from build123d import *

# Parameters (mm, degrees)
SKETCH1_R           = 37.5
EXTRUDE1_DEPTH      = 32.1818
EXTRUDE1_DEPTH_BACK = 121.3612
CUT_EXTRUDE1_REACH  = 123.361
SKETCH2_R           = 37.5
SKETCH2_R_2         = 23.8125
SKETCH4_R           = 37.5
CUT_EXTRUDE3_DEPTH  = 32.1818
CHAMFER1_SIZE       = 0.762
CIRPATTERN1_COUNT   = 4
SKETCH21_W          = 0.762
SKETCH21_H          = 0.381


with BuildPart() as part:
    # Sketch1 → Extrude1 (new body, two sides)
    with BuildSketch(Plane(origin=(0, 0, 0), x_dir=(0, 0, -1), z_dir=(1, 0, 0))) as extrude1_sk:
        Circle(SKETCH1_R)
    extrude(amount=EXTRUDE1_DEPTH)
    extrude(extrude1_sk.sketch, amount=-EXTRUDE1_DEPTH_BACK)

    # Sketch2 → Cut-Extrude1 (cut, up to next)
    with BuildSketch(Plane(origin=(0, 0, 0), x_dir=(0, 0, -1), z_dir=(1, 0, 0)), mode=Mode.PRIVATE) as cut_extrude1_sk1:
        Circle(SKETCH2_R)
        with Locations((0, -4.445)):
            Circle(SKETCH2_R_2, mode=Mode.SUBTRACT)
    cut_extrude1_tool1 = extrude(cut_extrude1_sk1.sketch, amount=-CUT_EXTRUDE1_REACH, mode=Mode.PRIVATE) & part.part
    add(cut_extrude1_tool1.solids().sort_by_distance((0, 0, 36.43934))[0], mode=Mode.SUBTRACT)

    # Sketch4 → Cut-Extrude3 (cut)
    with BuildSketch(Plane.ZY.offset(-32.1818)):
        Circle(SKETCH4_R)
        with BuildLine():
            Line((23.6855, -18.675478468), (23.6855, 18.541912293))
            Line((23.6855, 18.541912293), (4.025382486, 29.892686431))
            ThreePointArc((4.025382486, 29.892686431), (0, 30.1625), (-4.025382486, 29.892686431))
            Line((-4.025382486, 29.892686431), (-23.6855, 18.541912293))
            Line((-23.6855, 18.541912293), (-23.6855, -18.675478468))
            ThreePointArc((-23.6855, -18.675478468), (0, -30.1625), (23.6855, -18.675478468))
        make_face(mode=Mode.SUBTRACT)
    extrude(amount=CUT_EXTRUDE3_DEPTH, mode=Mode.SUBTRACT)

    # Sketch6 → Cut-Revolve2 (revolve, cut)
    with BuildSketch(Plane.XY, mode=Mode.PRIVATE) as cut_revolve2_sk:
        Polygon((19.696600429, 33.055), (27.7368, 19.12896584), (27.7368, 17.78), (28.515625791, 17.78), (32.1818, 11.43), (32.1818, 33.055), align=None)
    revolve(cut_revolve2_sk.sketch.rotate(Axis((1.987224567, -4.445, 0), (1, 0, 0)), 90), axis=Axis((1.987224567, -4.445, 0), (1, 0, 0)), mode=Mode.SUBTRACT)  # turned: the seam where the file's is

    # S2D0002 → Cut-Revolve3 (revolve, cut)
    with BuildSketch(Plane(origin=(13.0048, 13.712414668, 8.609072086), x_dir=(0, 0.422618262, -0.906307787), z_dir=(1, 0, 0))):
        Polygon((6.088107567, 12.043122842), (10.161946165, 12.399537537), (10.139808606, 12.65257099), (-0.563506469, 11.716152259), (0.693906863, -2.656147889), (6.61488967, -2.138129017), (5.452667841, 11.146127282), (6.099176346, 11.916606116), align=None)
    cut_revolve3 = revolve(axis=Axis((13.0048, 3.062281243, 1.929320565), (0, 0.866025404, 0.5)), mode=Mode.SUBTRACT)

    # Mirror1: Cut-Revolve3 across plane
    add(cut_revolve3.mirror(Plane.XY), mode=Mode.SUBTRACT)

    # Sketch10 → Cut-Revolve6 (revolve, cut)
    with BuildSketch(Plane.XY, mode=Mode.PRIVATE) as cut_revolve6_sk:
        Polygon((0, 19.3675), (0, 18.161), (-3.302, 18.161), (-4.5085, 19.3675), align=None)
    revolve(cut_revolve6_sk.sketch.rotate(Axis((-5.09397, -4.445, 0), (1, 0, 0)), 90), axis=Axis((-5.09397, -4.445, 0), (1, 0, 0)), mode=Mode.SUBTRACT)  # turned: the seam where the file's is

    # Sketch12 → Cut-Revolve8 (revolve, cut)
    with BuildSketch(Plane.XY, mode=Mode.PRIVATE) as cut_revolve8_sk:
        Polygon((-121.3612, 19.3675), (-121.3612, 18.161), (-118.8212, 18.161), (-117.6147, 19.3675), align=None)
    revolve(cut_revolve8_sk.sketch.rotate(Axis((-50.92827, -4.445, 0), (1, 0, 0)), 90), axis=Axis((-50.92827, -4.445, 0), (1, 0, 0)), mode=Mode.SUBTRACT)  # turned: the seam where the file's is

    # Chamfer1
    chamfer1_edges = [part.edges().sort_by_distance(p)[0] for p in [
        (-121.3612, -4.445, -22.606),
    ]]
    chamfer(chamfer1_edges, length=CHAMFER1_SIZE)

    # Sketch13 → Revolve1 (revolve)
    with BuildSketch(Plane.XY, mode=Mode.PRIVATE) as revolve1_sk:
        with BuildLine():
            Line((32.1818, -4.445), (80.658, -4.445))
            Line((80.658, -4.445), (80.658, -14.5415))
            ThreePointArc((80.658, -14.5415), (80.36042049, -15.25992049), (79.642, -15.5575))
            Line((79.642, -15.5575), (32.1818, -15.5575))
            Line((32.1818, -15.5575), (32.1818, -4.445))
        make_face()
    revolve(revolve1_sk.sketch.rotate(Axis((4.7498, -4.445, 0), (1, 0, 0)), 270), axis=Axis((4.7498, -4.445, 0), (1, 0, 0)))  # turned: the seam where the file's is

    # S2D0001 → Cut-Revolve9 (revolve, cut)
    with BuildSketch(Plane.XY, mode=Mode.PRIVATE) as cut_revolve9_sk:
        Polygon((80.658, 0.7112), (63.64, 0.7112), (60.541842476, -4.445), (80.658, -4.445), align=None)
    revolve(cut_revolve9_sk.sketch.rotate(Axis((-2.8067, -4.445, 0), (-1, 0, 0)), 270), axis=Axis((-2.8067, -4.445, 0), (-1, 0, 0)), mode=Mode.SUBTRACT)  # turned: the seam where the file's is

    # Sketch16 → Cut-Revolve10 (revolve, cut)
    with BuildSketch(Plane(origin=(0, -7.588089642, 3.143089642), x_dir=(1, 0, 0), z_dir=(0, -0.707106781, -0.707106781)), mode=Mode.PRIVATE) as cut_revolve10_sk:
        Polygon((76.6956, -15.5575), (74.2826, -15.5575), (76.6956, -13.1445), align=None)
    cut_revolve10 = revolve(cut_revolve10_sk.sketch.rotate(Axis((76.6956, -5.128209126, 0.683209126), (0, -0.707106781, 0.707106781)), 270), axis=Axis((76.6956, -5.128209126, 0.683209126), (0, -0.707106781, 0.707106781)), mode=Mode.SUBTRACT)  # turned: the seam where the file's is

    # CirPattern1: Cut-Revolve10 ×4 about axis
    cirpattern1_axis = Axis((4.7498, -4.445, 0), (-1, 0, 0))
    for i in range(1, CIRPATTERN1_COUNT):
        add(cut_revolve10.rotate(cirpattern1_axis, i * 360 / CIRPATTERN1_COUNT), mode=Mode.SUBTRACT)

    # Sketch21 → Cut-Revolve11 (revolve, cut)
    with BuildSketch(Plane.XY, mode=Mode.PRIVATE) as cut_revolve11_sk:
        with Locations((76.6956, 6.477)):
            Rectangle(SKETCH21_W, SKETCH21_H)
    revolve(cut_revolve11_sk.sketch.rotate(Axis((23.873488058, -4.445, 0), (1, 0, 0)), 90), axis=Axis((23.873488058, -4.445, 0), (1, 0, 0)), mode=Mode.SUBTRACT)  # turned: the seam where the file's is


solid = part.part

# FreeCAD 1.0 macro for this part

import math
import FreeCAD as App
import Part
import Sketcher

V = App.Vector
Q = App.Units.Quantity


def edges_at(feature, points):
    """Names of the edges that pass closest to the given points."""
    edges = feature.Shape.Edges
    near = lambda p: min(range(len(edges)), key=lambda i: edges[i].distToShape(Part.Vertex(*p))[0])
    return sorted({f"Edge{near(p) + 1}" for p in points})


def add_polygon(sketch, points):
    """Adds a closed chain of lines whose ends are joined by coincident constraints."""
    first, n = sketch.GeometryCount, len(points)
    for a, b in zip(points, points[1:] + points[:1]):
        sketch.addGeometry(Part.LineSegment(App.Vector(*a, 0), App.Vector(*b, 0)), False)
    for i in range(n):
        sketch.addConstraint(Sketcher.Constraint("Coincident", first + i, 2, first + (i + 1) % n, 1))

doc = App.newDocument("Part")
body = doc.addObject("PartDesign::Body", "Body")

# Sketch on YZ plane
sketch1 = body.newObject("Sketcher::SketchObject", "Sketch")
sketch1.AttachmentSupport = (doc.getObject("YZ_Plane"), [""])
sketch1.MapMode = "FlatFace"
sketch1.addGeometry(Part.Circle(V(0, 0, 0), V(0, 0, 1), 38), False)
sketch1.addConstraint(Sketcher.Constraint("Coincident", 0, 3, -1, 1))
sketch1.addConstraint(Sketcher.Constraint("Diameter", 0, Q("75 mm")))
pad1 = body.newObject("PartDesign::Pad", "Pad")
pad1.Profile = sketch1
pad1.Type = "TwoLengths"
pad1.Length = Q("1.267 in")
pad1.Length2 = Q("4.778 in")

# Sketch on YZ plane
sketch2 = body.newObject("Sketcher::SketchObject", "Sketch001")
sketch2.AttachmentSupport = (doc.getObject("YZ_Plane"), [""])
sketch2.MapMode = "FlatFace"
sketch2.addGeometry(Part.Circle(V(0, 0, 0), V(0, 0, 1), 38), False)
sketch2.addGeometry(Part.Circle(V(-4, 0, 0), V(0, 0, 1), 24), False)
sketch2.addConstraint(Sketcher.Constraint("Coincident", 0, 3, -1, 1))
sketch2.addConstraint(Sketcher.Constraint("PointOnObject", 1, 3, -1))
sketch2.addConstraint(Sketcher.Constraint("Diameter", 1, Q("1.875 in")))
sketch2.addConstraint(Sketcher.Constraint("Diameter", 0, Q("75 mm")))
sketch2.addConstraint(Sketcher.Constraint("DistanceX", 1, 3, -1, 1, Q("0.175 in")))
pocket1 = body.newObject("PartDesign::Pocket", "Pocket")
pocket1.Profile = sketch2
pocket1.Type = "UpToFirst"

# Sketch on YZ plane
sketch3 = body.newObject("Sketcher::SketchObject", "Sketch002")
sketch3.AttachmentSupport = (doc.getObject("YZ_Plane"), [""])
sketch3.MapMode = "FlatFace"
sketch3.AttachmentOffset = App.Placement(V(0, 0, 1.267 * 25.4), App.Rotation())
sketch3.addGeometry(Part.Circle(V(0, 0, 0), V(0, 0, 1), 38), False)
sketch3.addGeometry(Part.LineSegment(V(19, 24, 0), V(-19, 24, 0)), False)
sketch3.addGeometry(Part.ArcOfCircle(Part.Circle(V(0, 0, 0), V(0, 0, 1), 30), math.radians(128), math.radians(232)), False)
sketch3.addGeometry(Part.LineSegment(V(-19, -24, 0), V(19, -24, 0)), False)
sketch3.addGeometry(Part.LineSegment(V(19, -24, 0), V(30, -4, 0)), False)
sketch3.addGeometry(Part.ArcOfCircle(Part.Circle(V(0, 0, 0), V(0, 0, 1), 30), math.radians(-7.67), math.radians(7.67)), False)
sketch3.addGeometry(Part.LineSegment(V(30, 4, 0), V(19, 24, 0)), False)
sketch3.addConstraint(Sketcher.Constraint("Coincident", 1, 2, 2, 1))
sketch3.addConstraint(Sketcher.Constraint("Coincident", 2, 2, 3, 1))
sketch3.addConstraint(Sketcher.Constraint("Coincident", 3, 2, 4, 1))
sketch3.addConstraint(Sketcher.Constraint("Coincident", 4, 2, 5, 1))
sketch3.addConstraint(Sketcher.Constraint("Coincident", 5, 2, 6, 1))
sketch3.addConstraint(Sketcher.Constraint("Coincident", 6, 2, 1, 1))
sketch3.addConstraint(Sketcher.Constraint("Horizontal", 1))
sketch3.addConstraint(Sketcher.Constraint("Horizontal", 3))
sketch3.addConstraint(Sketcher.Constraint("Coincident", 0, 3, -1, 1))
sketch3.addConstraint(Sketcher.Constraint("Coincident", 2, 3, -1, 1))
sketch3.addConstraint(Sketcher.Constraint("Coincident", 5, 3, -1, 1))
sketch3.addConstraint(Sketcher.Constraint("Equal", 2, 5))
sketch3.addConstraint(Sketcher.Constraint("Symmetric", 3, 2, 6, 2, -1))
sketch3.addConstraint(Sketcher.Constraint("Vertical", 4, 2, 5, 2))
sketch3.addConstraint(Sketcher.Constraint("Angle", 4, Q("60 deg")))
sketch3.addConstraint(Sketcher.Constraint("Radius", 2, Q("1.1875 in")))
sketch3.addConstraint(Sketcher.Constraint("Diameter", 0, Q("75 mm")))
sketch3.addConstraint(Sketcher.Constraint("DistanceY", 2, 2, 1, 2, Q("1.865 in")))
sketch3.addConstraint(Sketcher.Constraint("DistanceX", 1, 2, 1, 1, Q("37.217391 mm")))
pocket2 = body.newObject("PartDesign::Pocket", "Pocket001")
pocket2.Profile = sketch3
pocket2.Length = Q("1.267 in")

# Sketch on XY plane
sketch4 = body.newObject("Sketcher::SketchObject", "Sketch003")
sketch4.AttachmentSupport = (doc.getObject("XY_Plane"), [""])
sketch4.MapMode = "FlatFace"
add_polygon(sketch4, [(19.7, 33.1), (27.7, 19.1), (27.7, 17.8), (28.5, 17.8), (32.2, 11.4), (32.2, 33.1)])  # lines 0-5
sketch4.addGeometry(Part.LineSegment(V(19.7, -4.4, 0), V(32.2, -4.4, 0)), True)  # axis
sketch4.addConstraint(Sketcher.Constraint("Vertical", 1))
sketch4.addConstraint(Sketcher.Constraint("Horizontal", 2))
sketch4.addConstraint(Sketcher.Constraint("Vertical", 4))
sketch4.addConstraint(Sketcher.Constraint("Horizontal", 5))
sketch4.addConstraint(Sketcher.Constraint("Horizontal", 6))
sketch4.addConstraint(Sketcher.Constraint("Parallel", 0, 3))
sketch4.addConstraint(Sketcher.Constraint("Vertical", 5, 2, 6, 1))
sketch4.addConstraint(Sketcher.Constraint("Vertical", 4, 2, 6, 2))
sketch4.addConstraint(Sketcher.Constraint("Angle", 0, Q("-60 deg")))
sketch4.addConstraint(Sketcher.Constraint("DistanceY", -1, 1, 1, 2, Q("0.7 in")))
sketch4.addConstraint(Sketcher.Constraint("DistanceY", -1, 1, 3, 2, Q("0.45 in")))
sketch4.addConstraint(Sketcher.Constraint("DistanceX", -1, 1, 0, 2, Q("1.092 in")))
sketch4.addConstraint(Sketcher.Constraint("DistanceX", -1, 1, 3, 2, Q("1.267 in")))
sketch4.addConstraint(Sketcher.Constraint("DistanceY", 6, 1, -1, 1, Q("0.175 in")))
sketch4.addConstraint(Sketcher.Constraint("DistanceX", 5, 2, 5, 1, Q("12.4852 mm")))
sketch4.addConstraint(Sketcher.Constraint("DistanceY", 4, 1, 4, 2, Q("21.625 mm")))
groove = body.newObject("PartDesign::Groove", "Groove")
groove.Profile = sketch4
groove.ReferenceAxis = (sketch4, ["Axis0"])
groove.Angle = 360

# Sketch on YZ plane
sketch5 = body.newObject("Sketcher::SketchObject", "Sketch004")
sketch5.AttachmentSupport = (doc.getObject("YZ_Plane"), [""])
sketch5.MapMode = "FlatFace"
sketch5.AttachmentOffset = App.Placement(V(0, 0, 0.512 * 25.4), App.Rotation())
add_polygon(sketch5, [(27.2, 8.18), (29.24, 4.64), (29.46, 4.77), (24.09, 14.07), (11.6, 6.86), (14.57, 1.71), (26.12, 8.38), (27.09, 8.12)])  # lines 0-7
sketch5.addGeometry(Part.LineSegment(V(11.6, 6.86, 0), V(24.09, 14.07, 0)), True)  # axis
sketch5.addConstraint(Sketcher.Constraint("Coincident", 8, 1, 3, 2))
sketch5.addConstraint(Sketcher.Constraint("Coincident", 8, 2, 2, 2))
sketch5.addConstraint(Sketcher.Constraint("Perpendicular", 0, 1))
sketch5.addConstraint(Sketcher.Constraint("Perpendicular", 1, 2))
sketch5.addConstraint(Sketcher.Constraint("Perpendicular", 2, 3))
sketch5.addConstraint(Sketcher.Constraint("Perpendicular", 3, 4))
sketch5.addConstraint(Sketcher.Constraint("Perpendicular", 4, 5))
sketch5.addConstraint(Sketcher.Constraint("Parallel", 5, 7))
sketch5.addConstraint(Sketcher.Constraint("Angle", 0, Q("-60 deg")))
sketch5.addConstraint(Sketcher.Constraint("Angle", 6, Q("-15 deg")))
sketch5.addConstraint(Sketcher.Constraint("Distance", 1, Q("0.01 in")))
sketch5.addConstraint(Sketcher.Constraint("Distance", 0, Q("0.161 in")))
sketch5.addConstraint(Sketcher.Constraint("Distance", 2, Q("0.423 in")))
sketch5.addConstraint(Sketcher.Constraint("Distance", 3, Q("0.568 in")))
sketch5.addConstraint(Sketcher.Constraint("Distance", 4, Q("0.234 in")))
sketch5.addConstraint(Sketcher.Constraint("Distance", 5, Q("0.525 in")))
sketch5.addConstraint(Sketcher.Constraint("DistanceX", -1, 1, 6, 2, Q("27.090151 mm")))
sketch5.addConstraint(Sketcher.Constraint("DistanceY", -1, 1, 0, 2, Q("4.639492 mm")))
groove2 = body.newObject("PartDesign::Groove", "Groove001")
groove2.Profile = sketch5
groove2.ReferenceAxis = (sketch5, ["Axis0"])
groove2.Angle = 360
doc.recompute()

mirrored = body.newObject("PartDesign::Mirrored", "Mirrored")
mirrored.Originals = [groove2]
mirrored.MirrorPlane = (doc.getObject("XY_Plane"), [""])
body.Tip = mirrored

# Sketch on XY plane
sketch6 = body.newObject("Sketcher::SketchObject", "Sketch005")
sketch6.AttachmentSupport = (doc.getObject("XY_Plane"), [""])
sketch6.MapMode = "FlatFace"
add_polygon(sketch6, [(0, 18.2), (0, 19.4), (-4.5, 19.4), (-3.3, 18.2)])  # lines 0-3
sketch6.addGeometry(Part.LineSegment(V(-4.5, -4.4, 0), V(0, -4.4, 0)), True)  # axis
sketch6.addConstraint(Sketcher.Constraint("Vertical", 0))
sketch6.addConstraint(Sketcher.Constraint("Horizontal", 1))
sketch6.addConstraint(Sketcher.Constraint("Horizontal", 3))
sketch6.addConstraint(Sketcher.Constraint("Horizontal", 4))
sketch6.addConstraint(Sketcher.Constraint("PointOnObject", 0, 2, -2))
sketch6.addConstraint(Sketcher.Constraint("PointOnObject", 4, 2, -2))
sketch6.addConstraint(Sketcher.Constraint("Vertical", 1, 2, 4, 1))
sketch6.addConstraint(Sketcher.Constraint("Angle", 2, Q("-45 deg")))
sketch6.addConstraint(Sketcher.Constraint("DistanceX", 3, 1, 3, 2, Q("0.13 in")))
sketch6.addConstraint(Sketcher.Constraint("DistanceY", 4, 1, 2, 2, Q("0.89 in")))
sketch6.addConstraint(Sketcher.Constraint("DistanceX", 1, 2, 1, 1, Q("0.1775 in")))
sketch6.addConstraint(Sketcher.Constraint("DistanceY", -1, 1, 2, 2, Q("0.715 in")))
groove3 = body.newObject("PartDesign::Groove", "Groove002")
groove3.Profile = sketch6
groove3.ReferenceAxis = (sketch6, ["Axis0"])
groove3.Angle = 360

# Sketch on XY plane
sketch7 = body.newObject("Sketcher::SketchObject", "Sketch006")
sketch7.AttachmentSupport = (doc.getObject("XY_Plane"), [""])
sketch7.MapMode = "FlatFace"
add_polygon(sketch7, [(-121.4, 19.4), (-121.4, 18.2), (-118.8, 18.2), (-117.6, 19.4)])  # lines 0-3
sketch7.addGeometry(Part.LineSegment(V(-121.4, -4.4, 0), V(-117.6, -4.4, 0)), True)  # axis
sketch7.addConstraint(Sketcher.Constraint("Vertical", 0))
sketch7.addConstraint(Sketcher.Constraint("Horizontal", 1))
sketch7.addConstraint(Sketcher.Constraint("Horizontal", 3))
sketch7.addConstraint(Sketcher.Constraint("Horizontal", 4))
sketch7.addConstraint(Sketcher.Constraint("Vertical", 3, 2, 4, 1))
sketch7.addConstraint(Sketcher.Constraint("Vertical", 2, 2, 4, 2))
sketch7.addConstraint(Sketcher.Constraint("DistanceX", 1, 1, 1, 2, Q("0.1 in")))
sketch7.addConstraint(Sketcher.Constraint("Angle", 2, Q("45 deg")))
sketch7.addConstraint(Sketcher.Constraint("DistanceY", 4, 1, 0, 2, Q("0.89 in")))
sketch7.addConstraint(Sketcher.Constraint("DistanceX", 3, 2, 3, 1, Q("0.1475 in")))
sketch7.addConstraint(Sketcher.Constraint("DistanceX", 0, 2, -1, 1, Q("4.778 in")))
sketch7.addConstraint(Sketcher.Constraint("DistanceY", -1, 1, 0, 2, Q("0.715 in")))
groove4 = body.newObject("PartDesign::Groove", "Groove003")
groove4.Profile = sketch7
groove4.ReferenceAxis = (sketch7, ["Axis0"])
groove4.Angle = 360
doc.recompute()

chamfer = body.newObject("PartDesign::Chamfer", "Chamfer")
chamfer.Base = (groove4, edges_at(groove4, [(-121.361, -4.445, -22.606)]))
chamfer.Size = Q("0.03 in")

# Sketch on XY plane
sketch8 = body.newObject("Sketcher::SketchObject", "Sketch007")
sketch8.AttachmentSupport = (doc.getObject("XY_Plane"), [""])
sketch8.MapMode = "FlatFace"
sketch8.addGeometry(Part.LineSegment(V(80.7, -4.4, 0), V(32.2, -4.4, 0)), False)
sketch8.addGeometry(Part.LineSegment(V(32.2, -4.4, 0), V(32.2, -15.6, 0)), False)
sketch8.addGeometry(Part.LineSegment(V(32.2, -15.6, 0), V(79.6, -15.6, 0)), False)
sketch8.addGeometry(Part.ArcOfCircle(Part.Circle(V(79.6, -14.5, 0), V(0, 0, 1), 1), math.radians(-90), math.radians(0)), False)
sketch8.addGeometry(Part.LineSegment(V(80.7, -14.5, 0), V(80.7, -4.4, 0)), False)
sketch8.addGeometry(Part.LineSegment(V(32.2, -4.4, 0), V(80.7, -4.4, 0)), True)  # axis
sketch8.addConstraint(Sketcher.Constraint("Coincident", 0, 2, 1, 1))
sketch8.addConstraint(Sketcher.Constraint("Coincident", 1, 2, 2, 1))
sketch8.addConstraint(Sketcher.Constraint("Tangent", 2, 2, 3, 1))
sketch8.addConstraint(Sketcher.Constraint("Tangent", 3, 2, 4, 1))
sketch8.addConstraint(Sketcher.Constraint("Coincident", 4, 2, 0, 1))
sketch8.addConstraint(Sketcher.Constraint("Horizontal", 0))
sketch8.addConstraint(Sketcher.Constraint("Vertical", 1))
sketch8.addConstraint(Sketcher.Constraint("Horizontal", 2))
sketch8.addConstraint(Sketcher.Constraint("Vertical", 4))
sketch8.addConstraint(Sketcher.Constraint("Horizontal", 5))
sketch8.addConstraint(Sketcher.Constraint("Coincident", 5, 1, 0, 2))
sketch8.addConstraint(Sketcher.Constraint("Vertical", 3, 2, 5, 2))
sketch8.addConstraint(Sketcher.Constraint("Radius", 3, Q("0.04 in")))
sketch8.addConstraint(Sketcher.Constraint("DistanceY", 1, 2, 1, 1, Q("0.4375 in")))
sketch8.addConstraint(Sketcher.Constraint("DistanceX", -1, 1, 0, 2, Q("1.267 in")))
sketch8.addConstraint(Sketcher.Constraint("DistanceY", 0, 2, -1, 1, Q("0.175 in")))
sketch8.addConstraint(Sketcher.Constraint("DistanceX", 0, 2, 0, 1, Q("48.4762 mm")))
revolution = body.newObject("PartDesign::Revolution", "Revolution")
revolution.Profile = sketch8
revolution.ReferenceAxis = (sketch8, ["Axis0"])
revolution.Angle = 360

# Sketch on XY plane
sketch9 = body.newObject("Sketcher::SketchObject", "Sketch008")
sketch9.AttachmentSupport = (doc.getObject("XY_Plane"), [""])
sketch9.MapMode = "FlatFace"
add_polygon(sketch9, [(81, 1), (64, 1), (61, -4), (81, -4)])  # lines 0-3
sketch9.addGeometry(Part.LineSegment(V(81, -4, 0), V(61, -4, 0)), True)  # axis
sketch9.addConstraint(Sketcher.Constraint("Horizontal", 0))
sketch9.addConstraint(Sketcher.Constraint("Horizontal", 2))
sketch9.addConstraint(Sketcher.Constraint("Vertical", 3))
sketch9.addConstraint(Sketcher.Constraint("Horizontal", 4))
sketch9.addConstraint(Sketcher.Constraint("Coincident", 4, 1, 2, 2))
sketch9.addConstraint(Sketcher.Constraint("Equal", 2, 4))
sketch9.addConstraint(Sketcher.Constraint("Angle", 1, Q("-121 deg")))
sketch9.addConstraint(Sketcher.Constraint("DistanceX", 0, 2, 0, 1, Q("0.67 in")))
sketch9.addConstraint(Sketcher.Constraint("DistanceY", 3, 1, 3, 2, Q("0.203 in")))
sketch9.addConstraint(Sketcher.Constraint("DistanceY", -1, 1, 0, 2, Q("0.028 in")))
sketch9.addConstraint(Sketcher.Constraint("DistanceX", -1, 1, 0, 2, Q("63.64 mm")))
groove5 = body.newObject("PartDesign::Groove", "Groove004")
groove5.Profile = sketch9
groove5.ReferenceAxis = (sketch9, ["Axis0"])
groove5.Angle = 360

# Sketch on an angled plane
sketch10 = body.newObject("Sketcher::SketchObject", "Sketch009")
sketch10.Placement = App.Placement(V(0, -7.58809, 3.14309), App.Rotation(V(1, 0, 0), V(0, -0.707106781, 0.707106781), V(0, -0.707106781, -0.707106781), "ZXY"))
add_polygon(sketch10, [(74.3, -15.6), (76.7, -15.6), (76.7, -13.1)])  # lines 0-2
sketch10.addGeometry(Part.LineSegment(V(76.7, -15.6, 0), V(76.7, -13.1, 0)), True)  # axis
sketch10.addConstraint(Sketcher.Constraint("Horizontal", 0))
sketch10.addConstraint(Sketcher.Constraint("Vertical", 1))
sketch10.addConstraint(Sketcher.Constraint("Vertical", 3))
sketch10.addConstraint(Sketcher.Constraint("Coincident", 3, 1, 0, 2))
sketch10.addConstraint(Sketcher.Constraint("Equal", 0, 1))
sketch10.addConstraint(Sketcher.Constraint("Equal", 1, 3))
sketch10.addConstraint(Sketcher.Constraint("DistanceX", 0, 1, 0, 2, Q("0.095 in")))
sketch10.addConstraint(Sketcher.Constraint("DistanceY", 0, 2, -1, 1, Q("0.6125 in")))
sketch10.addConstraint(Sketcher.Constraint("DistanceX", -1, 1, 0, 2, Q("76.6956 mm")))
groove6 = body.newObject("PartDesign::Groove", "Groove005")
groove6.Profile = sketch10
groove6.ReferenceAxis = (sketch10, ["Axis0"])
groove6.Angle = 360
doc.recompute()

datumline = body.newObject("PartDesign::Line", "DatumLine")
datumline.Placement = App.Placement(V(0, -4.445, 0), App.Rotation(V(0, 0, 1), V(-1, 0, 0)))
polarpattern = body.newObject("PartDesign::PolarPattern", "PolarPattern")
polarpattern.Originals = [groove6]
polarpattern.Axis = (datumline, [""])
polarpattern.Angle = 360
polarpattern.Occurrences = 4
body.Tip = polarpattern

# Sketch on XY plane
sketch11 = body.newObject("Sketcher::SketchObject", "Sketch010")
sketch11.AttachmentSupport = (doc.getObject("XY_Plane"), [""])
sketch11.MapMode = "FlatFace"
add_polygon(sketch11, [(76.31, 6.67), (76.31, 6.29), (77.08, 6.29), (77.08, 6.67)])  # lines 0-3
sketch11.addGeometry(Part.LineSegment(V(76.31, -4.45, 0), V(77.08, -4.45, 0)), True)  # axis
sketch11.addConstraint(Sketcher.Constraint("Vertical", 0))
sketch11.addConstraint(Sketcher.Constraint("Horizontal", 1))
sketch11.addConstraint(Sketcher.Constraint("Vertical", 2))
sketch11.addConstraint(Sketcher.Constraint("Horizontal", 3))
sketch11.addConstraint(Sketcher.Constraint("Horizontal", 4))
sketch11.addConstraint(Sketcher.Constraint("Vertical", 3, 2, 4, 1))
sketch11.addConstraint(Sketcher.Constraint("Vertical", 2, 2, 4, 2))
sketch11.addConstraint(Sketcher.Constraint("DistanceX", 1, 1, 1, 2, Q("0.03 in")))
sketch11.addConstraint(Sketcher.Constraint("DistanceY", 0, 2, 0, 1, Q("0.015 in")))
sketch11.addConstraint(Sketcher.Constraint("DistanceY", 4, 1, -1, 1, Q("0.175 in")))
sketch11.addConstraint(Sketcher.Constraint("DistanceY", 4, 1, 3, 2, Q("0.4375 in")))
sketch11.addConstraint(Sketcher.Constraint("DistanceX", -1, 1, 0, 2, Q("76.3146 mm")))
groove7 = body.newObject("PartDesign::Groove", "Groove006")
groove7.Profile = sketch11
groove7.ReferenceAxis = (sketch11, ["Axis0"])
groove7.Angle = 360

doc.recompute()
